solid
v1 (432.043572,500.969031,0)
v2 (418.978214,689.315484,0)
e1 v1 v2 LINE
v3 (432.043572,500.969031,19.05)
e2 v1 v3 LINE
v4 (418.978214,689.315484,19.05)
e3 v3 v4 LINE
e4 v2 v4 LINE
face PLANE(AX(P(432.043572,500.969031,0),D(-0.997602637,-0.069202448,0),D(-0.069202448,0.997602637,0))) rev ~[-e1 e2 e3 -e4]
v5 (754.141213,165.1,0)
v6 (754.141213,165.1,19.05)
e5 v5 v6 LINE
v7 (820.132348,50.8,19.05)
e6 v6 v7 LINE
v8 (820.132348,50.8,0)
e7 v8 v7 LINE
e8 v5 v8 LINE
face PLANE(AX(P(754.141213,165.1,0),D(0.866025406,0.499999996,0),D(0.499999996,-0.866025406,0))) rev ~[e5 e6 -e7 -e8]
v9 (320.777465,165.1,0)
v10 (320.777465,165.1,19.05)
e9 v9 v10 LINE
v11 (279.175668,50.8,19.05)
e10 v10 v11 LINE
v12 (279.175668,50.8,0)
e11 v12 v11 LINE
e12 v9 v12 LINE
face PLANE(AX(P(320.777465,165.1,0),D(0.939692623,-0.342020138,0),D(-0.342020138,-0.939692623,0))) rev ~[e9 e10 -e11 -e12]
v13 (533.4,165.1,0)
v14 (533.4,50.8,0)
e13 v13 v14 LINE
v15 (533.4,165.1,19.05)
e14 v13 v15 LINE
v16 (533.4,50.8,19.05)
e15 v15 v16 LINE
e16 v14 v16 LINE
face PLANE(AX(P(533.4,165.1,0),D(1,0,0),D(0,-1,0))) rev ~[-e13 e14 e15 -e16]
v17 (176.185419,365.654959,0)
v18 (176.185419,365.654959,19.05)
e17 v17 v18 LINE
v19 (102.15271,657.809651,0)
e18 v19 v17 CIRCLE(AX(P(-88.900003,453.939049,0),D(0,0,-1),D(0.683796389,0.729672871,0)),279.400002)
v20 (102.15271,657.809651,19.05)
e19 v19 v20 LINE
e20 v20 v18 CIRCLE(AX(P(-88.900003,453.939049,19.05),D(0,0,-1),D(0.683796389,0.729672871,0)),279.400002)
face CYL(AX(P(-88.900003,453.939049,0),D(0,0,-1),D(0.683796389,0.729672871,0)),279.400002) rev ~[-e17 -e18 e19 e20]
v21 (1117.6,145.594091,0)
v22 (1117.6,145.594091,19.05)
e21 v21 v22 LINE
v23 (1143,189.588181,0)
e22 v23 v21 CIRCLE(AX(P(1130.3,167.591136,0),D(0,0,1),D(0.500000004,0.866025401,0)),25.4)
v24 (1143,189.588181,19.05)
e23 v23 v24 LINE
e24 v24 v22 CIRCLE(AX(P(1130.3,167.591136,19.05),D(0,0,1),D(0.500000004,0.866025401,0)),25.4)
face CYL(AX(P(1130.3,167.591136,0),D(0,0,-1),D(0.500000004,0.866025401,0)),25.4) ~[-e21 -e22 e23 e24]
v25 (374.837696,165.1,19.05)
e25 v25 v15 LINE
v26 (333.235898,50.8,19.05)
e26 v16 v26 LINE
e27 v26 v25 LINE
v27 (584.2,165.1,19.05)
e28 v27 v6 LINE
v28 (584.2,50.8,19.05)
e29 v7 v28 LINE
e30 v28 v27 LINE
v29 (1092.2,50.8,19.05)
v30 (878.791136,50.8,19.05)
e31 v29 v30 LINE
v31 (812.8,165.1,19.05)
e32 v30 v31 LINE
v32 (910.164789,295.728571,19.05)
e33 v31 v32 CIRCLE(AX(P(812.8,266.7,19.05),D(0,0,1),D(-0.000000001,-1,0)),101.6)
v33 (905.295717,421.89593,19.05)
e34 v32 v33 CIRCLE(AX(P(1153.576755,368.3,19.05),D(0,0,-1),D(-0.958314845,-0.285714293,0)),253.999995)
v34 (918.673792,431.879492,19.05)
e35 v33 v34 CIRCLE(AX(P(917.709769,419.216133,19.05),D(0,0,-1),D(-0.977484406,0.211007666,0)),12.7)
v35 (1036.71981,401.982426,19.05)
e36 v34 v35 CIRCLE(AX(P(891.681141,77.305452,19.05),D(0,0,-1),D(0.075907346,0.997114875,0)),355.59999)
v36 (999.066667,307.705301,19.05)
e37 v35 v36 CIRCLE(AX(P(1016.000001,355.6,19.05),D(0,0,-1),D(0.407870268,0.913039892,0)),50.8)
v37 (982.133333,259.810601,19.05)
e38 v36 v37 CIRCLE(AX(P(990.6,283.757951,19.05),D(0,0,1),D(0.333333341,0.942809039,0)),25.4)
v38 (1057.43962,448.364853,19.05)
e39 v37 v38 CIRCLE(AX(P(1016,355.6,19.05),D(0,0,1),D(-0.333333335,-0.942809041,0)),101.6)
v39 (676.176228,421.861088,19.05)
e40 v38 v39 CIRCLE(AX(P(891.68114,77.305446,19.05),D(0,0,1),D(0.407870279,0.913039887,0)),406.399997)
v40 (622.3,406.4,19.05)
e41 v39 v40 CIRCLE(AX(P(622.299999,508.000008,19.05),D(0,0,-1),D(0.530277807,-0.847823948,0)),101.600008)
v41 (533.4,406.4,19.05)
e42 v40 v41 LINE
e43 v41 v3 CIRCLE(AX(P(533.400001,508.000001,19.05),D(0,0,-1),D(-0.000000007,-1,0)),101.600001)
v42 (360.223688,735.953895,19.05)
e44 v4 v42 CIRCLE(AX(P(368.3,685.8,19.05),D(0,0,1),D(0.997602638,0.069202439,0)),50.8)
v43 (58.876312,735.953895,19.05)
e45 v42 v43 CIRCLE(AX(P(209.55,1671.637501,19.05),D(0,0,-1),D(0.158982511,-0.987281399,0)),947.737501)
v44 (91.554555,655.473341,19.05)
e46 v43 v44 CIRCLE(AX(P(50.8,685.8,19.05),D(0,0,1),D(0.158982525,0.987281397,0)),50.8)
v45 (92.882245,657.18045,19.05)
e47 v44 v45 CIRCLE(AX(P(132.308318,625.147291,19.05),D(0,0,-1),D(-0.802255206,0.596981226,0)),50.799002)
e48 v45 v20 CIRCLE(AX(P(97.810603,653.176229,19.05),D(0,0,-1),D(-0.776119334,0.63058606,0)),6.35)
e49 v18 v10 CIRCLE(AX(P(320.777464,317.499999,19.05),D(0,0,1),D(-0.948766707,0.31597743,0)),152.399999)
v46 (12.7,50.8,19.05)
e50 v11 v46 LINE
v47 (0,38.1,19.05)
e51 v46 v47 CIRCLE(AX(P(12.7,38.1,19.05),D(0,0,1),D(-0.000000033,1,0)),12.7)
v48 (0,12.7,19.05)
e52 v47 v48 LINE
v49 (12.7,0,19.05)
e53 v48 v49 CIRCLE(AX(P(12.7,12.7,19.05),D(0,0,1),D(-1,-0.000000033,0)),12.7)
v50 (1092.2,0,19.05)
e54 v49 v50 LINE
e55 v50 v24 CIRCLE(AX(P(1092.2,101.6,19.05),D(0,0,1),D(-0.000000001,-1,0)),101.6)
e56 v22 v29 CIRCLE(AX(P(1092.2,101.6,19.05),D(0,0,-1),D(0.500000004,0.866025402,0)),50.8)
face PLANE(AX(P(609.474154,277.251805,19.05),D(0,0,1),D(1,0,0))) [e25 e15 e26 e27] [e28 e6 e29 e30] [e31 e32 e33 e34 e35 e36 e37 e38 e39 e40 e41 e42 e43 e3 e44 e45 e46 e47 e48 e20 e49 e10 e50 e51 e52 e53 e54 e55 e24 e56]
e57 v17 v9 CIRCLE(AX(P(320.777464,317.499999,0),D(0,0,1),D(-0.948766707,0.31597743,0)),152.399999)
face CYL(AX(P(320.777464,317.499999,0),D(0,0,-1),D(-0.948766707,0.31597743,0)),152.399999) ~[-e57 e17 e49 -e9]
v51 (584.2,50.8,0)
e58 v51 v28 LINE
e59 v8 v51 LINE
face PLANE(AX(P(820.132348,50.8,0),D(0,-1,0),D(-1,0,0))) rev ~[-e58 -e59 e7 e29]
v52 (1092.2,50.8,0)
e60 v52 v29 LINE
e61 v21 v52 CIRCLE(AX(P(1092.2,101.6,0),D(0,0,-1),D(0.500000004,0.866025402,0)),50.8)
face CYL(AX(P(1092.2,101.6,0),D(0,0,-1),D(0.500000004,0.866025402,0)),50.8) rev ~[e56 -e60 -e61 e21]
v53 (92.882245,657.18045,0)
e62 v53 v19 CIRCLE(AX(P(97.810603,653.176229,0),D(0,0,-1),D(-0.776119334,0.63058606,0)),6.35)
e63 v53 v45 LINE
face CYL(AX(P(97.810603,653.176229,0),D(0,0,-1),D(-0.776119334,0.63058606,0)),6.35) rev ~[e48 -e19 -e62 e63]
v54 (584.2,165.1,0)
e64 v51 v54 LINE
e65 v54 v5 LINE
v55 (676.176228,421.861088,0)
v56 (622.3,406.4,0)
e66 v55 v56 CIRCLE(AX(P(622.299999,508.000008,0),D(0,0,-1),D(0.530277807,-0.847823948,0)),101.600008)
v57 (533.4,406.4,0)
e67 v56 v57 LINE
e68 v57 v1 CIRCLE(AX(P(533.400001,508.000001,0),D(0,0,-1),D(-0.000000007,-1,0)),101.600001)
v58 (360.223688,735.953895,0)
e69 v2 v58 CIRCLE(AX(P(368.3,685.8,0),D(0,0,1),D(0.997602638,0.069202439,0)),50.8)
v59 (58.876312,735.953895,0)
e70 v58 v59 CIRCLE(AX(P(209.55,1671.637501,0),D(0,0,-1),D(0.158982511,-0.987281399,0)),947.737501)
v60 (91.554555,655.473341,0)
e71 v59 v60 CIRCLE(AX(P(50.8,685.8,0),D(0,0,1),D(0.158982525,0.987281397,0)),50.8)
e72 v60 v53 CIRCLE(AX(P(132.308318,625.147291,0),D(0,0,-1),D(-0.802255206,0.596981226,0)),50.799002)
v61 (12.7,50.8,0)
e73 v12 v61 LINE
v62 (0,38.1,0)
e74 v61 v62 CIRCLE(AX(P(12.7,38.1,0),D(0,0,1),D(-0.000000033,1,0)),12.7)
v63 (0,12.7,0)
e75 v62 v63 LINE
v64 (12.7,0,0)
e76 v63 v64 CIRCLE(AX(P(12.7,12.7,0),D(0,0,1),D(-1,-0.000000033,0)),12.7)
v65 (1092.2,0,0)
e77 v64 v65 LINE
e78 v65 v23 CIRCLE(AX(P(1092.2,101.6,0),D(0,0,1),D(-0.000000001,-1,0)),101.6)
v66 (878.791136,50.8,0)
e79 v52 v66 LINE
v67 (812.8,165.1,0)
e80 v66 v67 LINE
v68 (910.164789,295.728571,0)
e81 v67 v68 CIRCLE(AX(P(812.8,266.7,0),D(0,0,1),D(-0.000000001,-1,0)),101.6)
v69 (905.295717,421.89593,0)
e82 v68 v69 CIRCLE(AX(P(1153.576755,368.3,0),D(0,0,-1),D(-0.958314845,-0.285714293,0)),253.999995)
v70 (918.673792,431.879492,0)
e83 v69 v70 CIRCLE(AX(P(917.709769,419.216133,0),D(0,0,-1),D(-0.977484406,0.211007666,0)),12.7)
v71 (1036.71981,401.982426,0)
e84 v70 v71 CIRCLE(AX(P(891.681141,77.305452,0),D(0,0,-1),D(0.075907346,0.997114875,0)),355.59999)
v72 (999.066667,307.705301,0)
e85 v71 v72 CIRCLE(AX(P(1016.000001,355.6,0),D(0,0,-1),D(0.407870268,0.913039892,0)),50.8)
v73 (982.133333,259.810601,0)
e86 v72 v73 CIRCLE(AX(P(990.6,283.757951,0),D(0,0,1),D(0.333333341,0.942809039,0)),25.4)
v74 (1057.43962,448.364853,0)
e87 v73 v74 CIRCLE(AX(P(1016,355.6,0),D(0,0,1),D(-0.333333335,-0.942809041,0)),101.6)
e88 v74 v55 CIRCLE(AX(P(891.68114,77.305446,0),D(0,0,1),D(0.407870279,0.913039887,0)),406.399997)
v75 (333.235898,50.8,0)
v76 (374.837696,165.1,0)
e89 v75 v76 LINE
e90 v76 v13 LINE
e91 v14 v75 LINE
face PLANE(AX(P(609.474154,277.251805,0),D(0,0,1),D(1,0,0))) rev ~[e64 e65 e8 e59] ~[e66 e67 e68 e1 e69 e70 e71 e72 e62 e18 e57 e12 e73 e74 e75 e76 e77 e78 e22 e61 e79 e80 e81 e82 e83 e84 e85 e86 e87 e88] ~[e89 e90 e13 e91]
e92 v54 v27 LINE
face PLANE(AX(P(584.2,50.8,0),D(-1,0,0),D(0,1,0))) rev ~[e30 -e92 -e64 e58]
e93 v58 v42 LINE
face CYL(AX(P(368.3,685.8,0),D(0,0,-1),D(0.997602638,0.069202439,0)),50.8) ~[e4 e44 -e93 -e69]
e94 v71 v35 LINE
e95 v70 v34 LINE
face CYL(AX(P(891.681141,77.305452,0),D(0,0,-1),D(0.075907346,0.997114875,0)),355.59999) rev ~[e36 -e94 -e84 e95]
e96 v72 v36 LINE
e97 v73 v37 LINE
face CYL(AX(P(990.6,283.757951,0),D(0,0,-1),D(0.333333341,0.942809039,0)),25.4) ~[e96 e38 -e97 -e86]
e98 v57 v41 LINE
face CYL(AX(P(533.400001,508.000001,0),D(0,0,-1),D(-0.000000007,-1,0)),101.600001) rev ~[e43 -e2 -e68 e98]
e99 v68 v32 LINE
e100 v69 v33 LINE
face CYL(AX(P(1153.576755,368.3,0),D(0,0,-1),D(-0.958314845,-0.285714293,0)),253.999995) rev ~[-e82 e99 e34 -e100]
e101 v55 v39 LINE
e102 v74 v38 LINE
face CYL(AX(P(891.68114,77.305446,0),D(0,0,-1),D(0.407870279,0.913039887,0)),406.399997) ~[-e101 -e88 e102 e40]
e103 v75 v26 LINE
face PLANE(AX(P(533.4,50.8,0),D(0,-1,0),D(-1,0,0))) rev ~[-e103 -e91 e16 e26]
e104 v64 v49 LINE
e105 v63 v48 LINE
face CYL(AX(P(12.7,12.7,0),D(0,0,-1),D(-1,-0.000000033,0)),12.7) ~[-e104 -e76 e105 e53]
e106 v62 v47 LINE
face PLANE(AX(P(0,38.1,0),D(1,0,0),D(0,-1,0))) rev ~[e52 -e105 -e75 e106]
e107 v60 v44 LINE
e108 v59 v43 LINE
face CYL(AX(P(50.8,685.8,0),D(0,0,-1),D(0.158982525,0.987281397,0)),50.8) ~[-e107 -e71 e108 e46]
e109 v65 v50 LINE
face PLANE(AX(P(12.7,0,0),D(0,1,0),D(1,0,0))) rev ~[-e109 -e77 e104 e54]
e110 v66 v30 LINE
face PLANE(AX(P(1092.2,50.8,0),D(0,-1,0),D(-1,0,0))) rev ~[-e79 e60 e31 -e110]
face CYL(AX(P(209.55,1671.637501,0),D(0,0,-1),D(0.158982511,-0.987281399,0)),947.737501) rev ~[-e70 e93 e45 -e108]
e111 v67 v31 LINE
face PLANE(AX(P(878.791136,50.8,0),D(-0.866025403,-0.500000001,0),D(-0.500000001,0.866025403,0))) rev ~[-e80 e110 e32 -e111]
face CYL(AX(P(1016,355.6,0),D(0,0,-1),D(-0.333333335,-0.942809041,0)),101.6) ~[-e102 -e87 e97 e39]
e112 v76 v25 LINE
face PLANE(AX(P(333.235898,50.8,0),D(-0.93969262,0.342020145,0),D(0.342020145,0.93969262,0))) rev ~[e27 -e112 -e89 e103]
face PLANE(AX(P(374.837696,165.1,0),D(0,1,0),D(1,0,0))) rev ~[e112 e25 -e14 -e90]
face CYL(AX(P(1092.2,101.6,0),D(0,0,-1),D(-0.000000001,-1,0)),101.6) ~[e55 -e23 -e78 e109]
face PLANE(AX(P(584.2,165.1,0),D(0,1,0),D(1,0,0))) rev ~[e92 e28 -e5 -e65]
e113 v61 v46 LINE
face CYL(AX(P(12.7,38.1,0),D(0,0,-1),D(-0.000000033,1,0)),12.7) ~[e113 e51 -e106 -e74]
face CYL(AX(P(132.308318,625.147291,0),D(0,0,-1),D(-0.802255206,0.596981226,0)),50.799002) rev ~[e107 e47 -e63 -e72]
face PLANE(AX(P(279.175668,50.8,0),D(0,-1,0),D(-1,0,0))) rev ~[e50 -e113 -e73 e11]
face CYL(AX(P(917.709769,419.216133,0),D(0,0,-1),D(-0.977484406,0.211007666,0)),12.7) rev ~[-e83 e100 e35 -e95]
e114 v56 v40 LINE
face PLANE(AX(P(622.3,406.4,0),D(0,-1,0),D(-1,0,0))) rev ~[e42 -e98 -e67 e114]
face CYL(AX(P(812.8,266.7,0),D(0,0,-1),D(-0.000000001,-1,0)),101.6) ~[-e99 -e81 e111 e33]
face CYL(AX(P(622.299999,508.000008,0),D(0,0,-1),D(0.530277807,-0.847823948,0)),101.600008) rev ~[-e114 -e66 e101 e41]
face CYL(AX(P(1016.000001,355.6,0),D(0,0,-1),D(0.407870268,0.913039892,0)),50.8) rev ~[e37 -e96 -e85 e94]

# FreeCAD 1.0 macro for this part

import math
import FreeCAD as App
import Part
import Sketcher
Q = App.Units.Quantity


def add_polygon(sketch, points):
    """Adds a closed chain of lines whose ends are joined by coincident constraints."""
    first, n = sketch.GeometryCount, len(points)
    for a, b in zip(points, points[1:] + points[:1]):
        sketch.addGeometry(Part.LineSegment(App.Vector(*a, 0), App.Vector(*b, 0)), False)
    for i in range(n):
        sketch.addConstraint(Sketcher.Constraint("Coincident", first + i, 2, first + (i + 1) % n, 1))

doc = App.newDocument("Part")
body = doc.addObject("PartDesign::Body", "Body")

sketch1 = body.newObject("Sketcher::SketchObject", "Sketch")
sketch1.AttachmentSupport = (doc.getObject("XY_Plane"), [""])
sketch1.MapMode = "FlatFace"
sketch1.addGeometry(Part.ArcOfCircle(Part.Circle(App.Vector(12.7, 12.7, 0), App.Vector(0, 0, 1), 12.7), math.radians(-180), math.radians(-90)), False)
sketch1.addGeometry(Part.LineSegment(App.Vector(12.7, 0, 0), App.Vector(1092.2, 0, 0)), False)
sketch1.addGeometry(Part.ArcOfCircle(Part.Circle(App.Vector(1092.2, 101.6, 0), App.Vector(0, 0, 1), 101.6), math.radians(-90), math.radians(60)), False)
sketch1.addGeometry(Part.ArcOfCircle(Part.Circle(App.Vector(1130.3, 167.6, 0), App.Vector(0, 0, 1), 25.4), math.radians(60), math.radians(240)), False)
sketch1.addGeometry(Part.ArcOfCircle(Part.Circle(App.Vector(1092.2, 101.6, 0), App.Vector(0, 0, 1), 50.8), math.radians(-90), math.radians(60)), False)
sketch1.addGeometry(Part.LineSegment(App.Vector(1092.2, 50.8, 0), App.Vector(878.8, 50.8, 0)), False)
sketch1.addGeometry(Part.LineSegment(App.Vector(878.8, 50.8, 0), App.Vector(812.8, 165.1, 0)), False)
sketch1.addGeometry(Part.ArcOfCircle(Part.Circle(App.Vector(812.8, 266.7, 0), App.Vector(0, 0, 1), 101.6), math.radians(-90), math.radians(17)), False)
sketch1.addGeometry(Part.ArcOfCircle(Part.Circle(App.Vector(1153.6, 368.3, 0), App.Vector(0, 0, 1), 254), math.radians(168), math.radians(197)), False)
sketch1.addGeometry(Part.ArcOfCircle(Part.Circle(App.Vector(917.7, 419.2, 0), App.Vector(0, 0, 1), 12.7), math.radians(86), math.radians(168)), False)
sketch1.addGeometry(Part.ArcOfCircle(Part.Circle(App.Vector(891.7, 77.3, 0), App.Vector(0, 0, 1), 355.6), math.radians(65.93), math.radians(85.65)), False)
sketch1.addGeometry(Part.ArcOfCircle(Part.Circle(App.Vector(1016, 355.6, 0), App.Vector(0, 0, 1), 50.8), math.radians(-109), math.radians(66)), False)
sketch1.addGeometry(Part.ArcOfCircle(Part.Circle(App.Vector(990.6, 283.8, 0), App.Vector(0, 0, 1), 25.4), math.radians(71), math.radians(251)), False)
sketch1.addGeometry(Part.ArcOfCircle(Part.Circle(App.Vector(1016, 355.6, 0), App.Vector(0, 0, 1), 101.6), math.radians(-109), math.radians(66)), False)
sketch1.addGeometry(Part.ArcOfCircle(Part.Circle(App.Vector(891.7, 77.3, 0), App.Vector(0, 0, 1), 406.4), math.radians(66), math.radians(122)), False)
sketch1.addGeometry(Part.ArcOfCircle(Part.Circle(App.Vector(622.3, 508, 0), App.Vector(0, 0, 1), 101.6), math.radians(-90), math.radians(-58)), False)
sketch1.addGeometry(Part.LineSegment(App.Vector(622.3, 406.4, 0), App.Vector(533.4, 406.4, 0)), False)
sketch1.addGeometry(Part.ArcOfCircle(Part.Circle(App.Vector(533.4, 508, 0), App.Vector(0, 0, 1), 101.6), math.radians(-176), math.radians(-90)), False)
sketch1.addGeometry(Part.LineSegment(App.Vector(432, 501, 0), App.Vector(419, 689.3, 0)), False)
sketch1.addGeometry(Part.ArcOfCircle(Part.Circle(App.Vector(368.3, 685.8, 0), App.Vector(0, 0, 1), 50.8), math.radians(4), math.radians(99)), False)
sketch1.addGeometry(Part.ArcOfCircle(Part.Circle(App.Vector(209.6, 1671.6, 0), App.Vector(0, 0, 1), 947.7), math.radians(-99.15), math.radians(-80.85)), False)
sketch1.addGeometry(Part.ArcOfCircle(Part.Circle(App.Vector(50.8, 685.8, 0), App.Vector(0, 0, 1), 50.8), math.radians(81), math.radians(323)), False)
sketch1.addGeometry(Part.ArcOfCircle(Part.Circle(App.Vector(132.3, 625.1, 0), App.Vector(0, 0, 1), 50.8), math.radians(140.91), math.radians(143.35)), False)
sketch1.addGeometry(Part.ArcOfCircle(Part.Circle(App.Vector(97.8, 653.2, 0), App.Vector(0, 0, 1), 6.3), math.radians(47), math.radians(141)), False)
sketch1.addGeometry(Part.ArcOfCircle(Part.Circle(App.Vector(-88.9, 453.9, 0), App.Vector(0, 0, 1), 279.4), math.radians(-18), math.radians(47)), False)
sketch1.addGeometry(Part.ArcOfCircle(Part.Circle(App.Vector(320.8, 317.5, 0), App.Vector(0, 0, 1), 152.4), math.radians(162), math.radians(270)), False)
sketch1.addGeometry(Part.LineSegment(App.Vector(320.8, 165.1, 0), App.Vector(279.2, 50.8, 0)), False)
sketch1.addGeometry(Part.LineSegment(App.Vector(279.2, 50.8, 0), App.Vector(12.7, 50.8, 0)), False)
sketch1.addGeometry(Part.ArcOfCircle(Part.Circle(App.Vector(12.7, 38.1, 0), App.Vector(0, 0, 1), 12.7), math.radians(90), math.radians(180)), False)
sketch1.addGeometry(Part.LineSegment(App.Vector(0, 38.1, 0), App.Vector(0, 12.7, 0)), False)
add_polygon(sketch1, [(820.1, 50.8), (584.2, 50.8), (584.2, 165.1), (754.1, 165.1)])
add_polygon(sketch1, [(533.4, 50.8), (333.2, 50.8), (374.8, 165.1), (533.4, 165.1)])
sketch1.addConstraint([
    Sketcher.Constraint("Tangent", 0, 2, 1, 1),
    Sketcher.Constraint("Tangent", 1, 2, 2, 1),
    Sketcher.Constraint("Tangent", 2, 2, 3, 1),
    Sketcher.Constraint("Tangent", 3, 2, 4, 2),
    Sketcher.Constraint("Tangent", 4, 1, 5, 1),
    Sketcher.Constraint("Coincident", 5, 2, 6, 1),
    Sketcher.Constraint("Coincident", 6, 2, 7, 1),
    Sketcher.Constraint("Tangent", 7, 2, 8, 2),
    Sketcher.Constraint("Tangent", 8, 1, 9, 2),
    Sketcher.Constraint("Tangent", 9, 1, 10, 2),
    Sketcher.Constraint("Tangent", 10, 1, 11, 2),
    Sketcher.Constraint("Tangent", 11, 1, 12, 1),
    Sketcher.Constraint("Tangent", 12, 2, 13, 1),
    Sketcher.Constraint("Tangent", 13, 2, 14, 1),
    Sketcher.Constraint("Tangent", 14, 2, 15, 2),
    Sketcher.Constraint("Tangent", 15, 1, 16, 1),
    Sketcher.Constraint("Tangent", 16, 2, 17, 2),
    Sketcher.Constraint("Tangent", 17, 1, 18, 1),
    Sketcher.Constraint("Tangent", 18, 2, 19, 1),
    Sketcher.Constraint("Tangent", 19, 2, 20, 2),
    Sketcher.Constraint("Tangent", 20, 1, 21, 1),
    Sketcher.Constraint("Tangent", 21, 2, 22, 2),
    Sketcher.Constraint("Tangent", 22, 1, 23, 2),
    Sketcher.Constraint("Tangent", 23, 1, 24, 2),
    Sketcher.Constraint("Tangent", 24, 1, 25, 1),
    Sketcher.Constraint("Coincident", 25, 2, 26, 1),
    Sketcher.Constraint("Coincident", 26, 2, 27, 1),
    Sketcher.Constraint("Tangent", 27, 2, 28, 1),
    Sketcher.Constraint("Tangent", 28, 2, 29, 1),
    Sketcher.Constraint("Tangent", 29, 2, 0, 1),
    Sketcher.Constraint("Horizontal", 1),
    Sketcher.Constraint("Horizontal", 5),
    Sketcher.Constraint("Horizontal", 16),
    Sketcher.Constraint("Horizontal", 27),
    Sketcher.Constraint("Vertical", 29),
    Sketcher.Constraint("Horizontal", 30),
    Sketcher.Constraint("Vertical", 31),
    Sketcher.Constraint("Horizontal", 32),
    Sketcher.Constraint("Horizontal", 34),
    Sketcher.Constraint("Horizontal", 36),
    Sketcher.Constraint("Vertical", 37),
    Sketcher.Constraint("Coincident", 4, 3, 2, 3),
    Sketcher.Constraint("Coincident", 13, 3, 11, 3),
    Sketcher.Constraint("Coincident", 14, 3, 10, 3),
    Sketcher.Constraint("Equal", 2, 7),
    Sketcher.Constraint("Equal", 0, 9),
    Sketcher.Constraint("Equal", 4, 11),
    Sketcher.Constraint("Equal", 3, 12),
    Sketcher.Constraint("Equal", 13, 17),
    Sketcher.Constraint("Equal", 11, 19),
    Sketcher.Constraint("Equal", 19, 21),
    Sketcher.Constraint("Equal", 9, 28),
    Sketcher.Constraint("PointOnObject", 0, 2, -1),
    Sketcher.Constraint("PointOnObject", 28, 2, -2),
    Sketcher.Constraint("Parallel", 6, 33),
    Sketcher.Constraint("Parallel", 26, 35),
    Sketcher.Constraint("Horizontal", 19, 3, 21, 3),
    Sketcher.Constraint("Horizontal", 6, 2, 25, 2),
    Sketcher.Constraint("Horizontal", 5, 2, 26, 2),
    Sketcher.Constraint("Horizontal", 27, 2, 30, 2),
    Sketcher.Constraint("Horizontal", 25, 2, 31, 2),
    Sketcher.Constraint("Horizontal", 33, 2, 34, 2),
    Sketcher.Constraint("Horizontal", 32, 2, 35, 2),
    Sketcher.Constraint("Vertical", 7, 3, 6, 2),
    Sketcher.Constraint("Vertical", 16, 2, 36, 2),
    Sketcher.Constraint("Radius", 2, Q("4 in")),
    Sketcher.Constraint("Radius", 3, Q("1 in")),
    Sketcher.Constraint("Radius", 8, Q("9.9999998 in")),
    Sketcher.Constraint("Radius", 14, Q("15.9999999 in")),
    Sketcher.Constraint("Radius", 24, Q("11.0000001 in")),
    Sketcher.Constraint("Radius", 25, Q("6 in")),
    Sketcher.Constraint("Radius", 0, Q("0.5 in")),
    Sketcher.Constraint("Radius", 23, Q("0.25 in")),
    Sketcher.Constraint("DistanceX", 1, 1, 1, 2, Q("42.5 in")),
    Sketcher.Constraint("DistanceX", 16, 2, 16, 1, Q("3.5 in")),
    Sketcher.Constraint("DistanceY", 31, 1, 31, 2, Q("4.5 in")),
    Sketcher.Constraint("DistanceX", -1, 1, 7, 3, Q("32 in")),
    Sketcher.Constraint("DistanceX", -1, 1, 11, 3, Q("40 in")),
    Sketcher.Constraint("DistanceY", -1, 1, 11, 3, Q("14 in")),
    Sketcher.Constraint("DistanceX", -1, 1, 12, 3, Q("39 in")),
    Sketcher.Constraint("DistanceX", -1, 1, 17, 3, Q("21 in")),
    Sketcher.Constraint("DistanceY", -1, 1, 17, 3, Q("20 in")),
    Sketcher.Constraint("DistanceY", -1, 1, 19, 3, Q("27 in")),
    Sketcher.Constraint("DistanceX", -1, 1, 21, 3, Q("2 in")),
    Sketcher.Constraint("DistanceX", -1, 1, 2, 2, Q("45 in")),
    Sketcher.Constraint("DistanceX", -1, 1, 30, 2, Q("23 in")),
    Sketcher.Constraint("Angle", 6, Q("120 deg")),
    Sketcher.Constraint("Angle", 26, Q("-110 deg")),
    Sketcher.Constraint("Radius", 20, Q("37.3125 in")),
    Sketcher.Constraint("DistanceY", 7, 3, 8, 3, Q("4 in")),
    Sketcher.Constraint("DistanceX", 19, 3, 15, 3, Q("9.9999999 in")),
    Sketcher.Constraint("DistanceX", 24, 3, 0, 3, Q("4.0000001 in")),
    Sketcher.Constraint("Radius", 22, Q("50.799002 mm")),
    Sketcher.Constraint("DistanceX", 34, 2, 34, 1, Q("200.164102 mm")),
    Sketcher.Constraint("Radius", 15, Q("101.600008 mm")),
    Sketcher.Constraint("DistanceX", 27, 2, 27, 1, Q("266.475668 mm")),
    Sketcher.Constraint("DistanceX", 23, 3, 17, 3, Q("435.589398 mm")),
    Sketcher.Constraint("DistanceY", 22, 1, 23, 1, Q("0.629201 mm")),
    Sketcher.Constraint("DistanceX", 30, 2, 30, 1, Q("235.932348 mm")),
])
pad1 = body.newObject("PartDesign::Pad", "Pad")
pad1.Profile = sketch1
pad1.Length = Q("0.75 in")

doc.recompute()
